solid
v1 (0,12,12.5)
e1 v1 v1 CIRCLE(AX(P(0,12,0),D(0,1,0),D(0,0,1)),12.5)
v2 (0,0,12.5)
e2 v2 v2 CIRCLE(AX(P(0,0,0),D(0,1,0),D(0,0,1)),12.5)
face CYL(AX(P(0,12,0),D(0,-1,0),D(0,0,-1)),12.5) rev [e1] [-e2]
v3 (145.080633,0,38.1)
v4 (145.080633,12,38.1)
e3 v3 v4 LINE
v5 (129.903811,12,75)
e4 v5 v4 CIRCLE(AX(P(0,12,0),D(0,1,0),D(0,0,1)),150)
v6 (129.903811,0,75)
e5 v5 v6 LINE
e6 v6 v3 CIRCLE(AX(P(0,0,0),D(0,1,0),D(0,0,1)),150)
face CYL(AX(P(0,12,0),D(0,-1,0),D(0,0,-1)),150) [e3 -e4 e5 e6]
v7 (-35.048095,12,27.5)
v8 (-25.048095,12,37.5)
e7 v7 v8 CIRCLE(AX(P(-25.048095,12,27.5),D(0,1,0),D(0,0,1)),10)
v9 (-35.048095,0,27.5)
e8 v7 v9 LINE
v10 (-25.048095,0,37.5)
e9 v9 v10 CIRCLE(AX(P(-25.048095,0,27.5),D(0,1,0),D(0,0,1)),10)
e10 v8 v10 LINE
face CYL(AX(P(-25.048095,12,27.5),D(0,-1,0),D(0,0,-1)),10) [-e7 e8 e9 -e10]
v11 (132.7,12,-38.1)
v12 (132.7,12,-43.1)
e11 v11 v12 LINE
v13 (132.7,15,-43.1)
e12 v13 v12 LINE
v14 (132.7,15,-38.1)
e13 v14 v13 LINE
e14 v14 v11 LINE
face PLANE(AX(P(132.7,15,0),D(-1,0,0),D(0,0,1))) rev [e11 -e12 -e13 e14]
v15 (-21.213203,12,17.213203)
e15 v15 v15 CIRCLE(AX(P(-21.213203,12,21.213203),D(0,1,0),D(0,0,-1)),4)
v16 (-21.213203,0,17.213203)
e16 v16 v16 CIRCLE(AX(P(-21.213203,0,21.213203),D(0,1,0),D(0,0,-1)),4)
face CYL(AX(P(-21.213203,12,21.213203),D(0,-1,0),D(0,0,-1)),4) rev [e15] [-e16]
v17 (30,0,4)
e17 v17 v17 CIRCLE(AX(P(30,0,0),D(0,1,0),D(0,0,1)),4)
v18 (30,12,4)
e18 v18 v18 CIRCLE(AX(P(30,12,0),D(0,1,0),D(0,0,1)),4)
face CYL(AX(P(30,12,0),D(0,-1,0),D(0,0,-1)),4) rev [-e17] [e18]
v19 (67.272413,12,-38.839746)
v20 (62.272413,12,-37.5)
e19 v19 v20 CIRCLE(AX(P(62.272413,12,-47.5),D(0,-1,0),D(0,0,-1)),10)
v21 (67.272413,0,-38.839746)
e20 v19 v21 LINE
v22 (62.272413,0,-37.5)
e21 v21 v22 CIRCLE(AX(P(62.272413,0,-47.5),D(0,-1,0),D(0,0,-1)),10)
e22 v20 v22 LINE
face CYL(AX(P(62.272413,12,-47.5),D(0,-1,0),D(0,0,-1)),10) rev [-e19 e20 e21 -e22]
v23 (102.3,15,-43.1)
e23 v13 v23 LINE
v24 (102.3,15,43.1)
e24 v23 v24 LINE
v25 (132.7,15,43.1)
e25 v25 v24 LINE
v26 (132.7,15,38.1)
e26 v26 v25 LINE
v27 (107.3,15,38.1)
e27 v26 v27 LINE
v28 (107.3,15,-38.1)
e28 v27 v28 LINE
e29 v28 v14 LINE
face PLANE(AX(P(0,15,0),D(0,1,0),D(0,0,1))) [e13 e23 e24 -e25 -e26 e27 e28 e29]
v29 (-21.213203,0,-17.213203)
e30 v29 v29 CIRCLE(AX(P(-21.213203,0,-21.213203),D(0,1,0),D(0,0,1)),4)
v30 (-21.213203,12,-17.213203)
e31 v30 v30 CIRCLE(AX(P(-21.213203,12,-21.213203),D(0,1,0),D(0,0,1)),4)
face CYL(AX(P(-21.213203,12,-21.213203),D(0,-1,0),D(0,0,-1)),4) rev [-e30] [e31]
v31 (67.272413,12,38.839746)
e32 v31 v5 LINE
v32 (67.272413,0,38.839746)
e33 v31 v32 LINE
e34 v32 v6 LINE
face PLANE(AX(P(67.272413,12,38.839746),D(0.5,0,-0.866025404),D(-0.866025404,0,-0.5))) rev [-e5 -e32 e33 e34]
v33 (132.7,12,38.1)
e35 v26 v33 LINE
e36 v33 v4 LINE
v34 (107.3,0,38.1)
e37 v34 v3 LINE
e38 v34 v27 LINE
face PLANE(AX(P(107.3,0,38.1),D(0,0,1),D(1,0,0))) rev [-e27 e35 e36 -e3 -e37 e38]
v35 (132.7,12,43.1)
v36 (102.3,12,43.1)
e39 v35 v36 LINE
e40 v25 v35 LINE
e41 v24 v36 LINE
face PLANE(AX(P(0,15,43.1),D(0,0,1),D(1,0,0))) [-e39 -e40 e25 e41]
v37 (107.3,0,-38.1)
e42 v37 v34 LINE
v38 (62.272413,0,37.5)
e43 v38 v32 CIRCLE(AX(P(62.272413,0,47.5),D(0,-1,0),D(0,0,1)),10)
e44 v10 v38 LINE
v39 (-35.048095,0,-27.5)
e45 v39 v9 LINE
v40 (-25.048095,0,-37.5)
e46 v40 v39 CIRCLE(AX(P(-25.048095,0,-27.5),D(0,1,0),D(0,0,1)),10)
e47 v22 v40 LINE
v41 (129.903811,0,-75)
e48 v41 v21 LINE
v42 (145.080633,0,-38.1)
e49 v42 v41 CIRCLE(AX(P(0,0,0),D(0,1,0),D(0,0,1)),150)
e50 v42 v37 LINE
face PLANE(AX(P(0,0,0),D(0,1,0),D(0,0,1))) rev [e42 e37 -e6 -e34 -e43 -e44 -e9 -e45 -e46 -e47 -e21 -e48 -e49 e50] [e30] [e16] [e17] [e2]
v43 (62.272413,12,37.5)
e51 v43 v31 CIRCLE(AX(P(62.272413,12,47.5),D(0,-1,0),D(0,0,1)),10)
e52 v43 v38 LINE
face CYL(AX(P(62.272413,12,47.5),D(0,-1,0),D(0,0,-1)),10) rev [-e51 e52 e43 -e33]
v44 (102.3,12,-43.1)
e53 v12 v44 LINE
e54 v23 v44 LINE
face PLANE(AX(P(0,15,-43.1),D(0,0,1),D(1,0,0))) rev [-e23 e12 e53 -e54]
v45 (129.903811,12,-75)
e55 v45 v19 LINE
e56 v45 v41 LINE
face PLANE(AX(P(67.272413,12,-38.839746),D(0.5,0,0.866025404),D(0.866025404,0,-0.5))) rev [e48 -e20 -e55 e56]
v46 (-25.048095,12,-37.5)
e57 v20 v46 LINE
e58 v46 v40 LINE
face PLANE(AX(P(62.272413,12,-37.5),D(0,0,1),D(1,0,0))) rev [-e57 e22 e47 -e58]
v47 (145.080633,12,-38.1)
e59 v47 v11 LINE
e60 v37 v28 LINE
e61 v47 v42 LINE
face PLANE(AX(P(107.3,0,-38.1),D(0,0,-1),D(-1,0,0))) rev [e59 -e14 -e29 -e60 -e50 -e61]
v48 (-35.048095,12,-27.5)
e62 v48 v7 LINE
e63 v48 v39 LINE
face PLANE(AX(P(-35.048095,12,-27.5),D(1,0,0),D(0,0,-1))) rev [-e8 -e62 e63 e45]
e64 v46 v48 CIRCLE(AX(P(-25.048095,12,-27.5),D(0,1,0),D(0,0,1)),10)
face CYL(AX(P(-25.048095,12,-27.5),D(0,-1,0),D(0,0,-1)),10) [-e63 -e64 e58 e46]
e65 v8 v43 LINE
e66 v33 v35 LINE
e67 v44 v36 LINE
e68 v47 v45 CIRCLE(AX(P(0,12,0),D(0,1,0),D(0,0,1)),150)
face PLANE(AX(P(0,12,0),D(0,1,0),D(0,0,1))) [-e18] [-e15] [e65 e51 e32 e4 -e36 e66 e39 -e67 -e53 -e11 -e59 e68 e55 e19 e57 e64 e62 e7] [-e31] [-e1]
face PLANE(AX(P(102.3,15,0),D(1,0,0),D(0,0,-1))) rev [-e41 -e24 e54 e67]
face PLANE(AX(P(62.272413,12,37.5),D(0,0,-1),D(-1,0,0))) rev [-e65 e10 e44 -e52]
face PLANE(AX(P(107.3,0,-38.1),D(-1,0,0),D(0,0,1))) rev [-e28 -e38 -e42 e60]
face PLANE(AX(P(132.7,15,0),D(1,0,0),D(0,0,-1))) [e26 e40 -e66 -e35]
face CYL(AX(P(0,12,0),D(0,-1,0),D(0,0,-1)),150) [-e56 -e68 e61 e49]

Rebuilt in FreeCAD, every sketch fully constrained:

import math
import FreeCAD as App
import Part
import Sketcher
Q = App.Units.Quantity

doc = App.newDocument("Part")
body = doc.addObject("PartDesign::Body", "Body")

# Sketch on XZ plane
sketch1 = body.newObject("Sketcher::SketchObject", "Sketch")
sketch1.AttachmentSupport = (doc.getObject("XZ_Plane"), [""])
sketch1.MapMode = "FlatFace"
sketch1.addGeometry([
    Part.LineSegment(App.Vector(129.903811, -75, 0), App.Vector(67.272413, -38.839746, 0)),  # 0
    Part.ArcOfCircle(Part.Circle(App.Vector(62.272413, -47.5, 0), App.Vector(0, 0, 1), 10), math.radians(60), math.radians(90)),  # 1
    Part.LineSegment(App.Vector(62.272413, -37.5, 0), App.Vector(-25.048095, -37.5, 0)),  # 2
    Part.ArcOfCircle(Part.Circle(App.Vector(-25.048095, -27.5, 0), App.Vector(0, 0, 1), 10), math.radians(180), math.radians(270)),  # 3
    Part.LineSegment(App.Vector(-35.048095, -27.5, 0), App.Vector(-35.048095, 27.5, 0)),  # 4
    Part.ArcOfCircle(Part.Circle(App.Vector(-25.048095, 27.5, 0), App.Vector(0, 0, 1), 10), math.radians(90), math.radians(180)),  # 5
    Part.LineSegment(App.Vector(-25.048095, 37.5, 0), App.Vector(62.272413, 37.5, 0)),  # 6
    Part.ArcOfCircle(Part.Circle(App.Vector(62.272413, 47.5, 0), App.Vector(0, 0, 1), 10), math.radians(-90), math.radians(-60)),  # 7
    Part.LineSegment(App.Vector(67.272413, 38.839746, 0), App.Vector(129.903811, 75, 0)),  # 8
    Part.ArcOfCircle(Part.Circle(App.Vector(0, 0, 0), App.Vector(0, 0, 1), 150), math.radians(-30), math.radians(30)),  # 9
    Part.Circle(App.Vector(-21.213203, 21.213203, 0), App.Vector(0, 0, 1), 4),  # 10
    Part.Circle(App.Vector(30, 0, 0), App.Vector(0, 0, 1), 4),  # 11
    Part.Circle(App.Vector(0, 0, 0), App.Vector(0, 0, 1), 12.5),  # 12
    Part.Circle(App.Vector(-21.213203, -21.213203, 0), App.Vector(0, 0, 1), 4),  # 13
], False)
sketch1.addConstraint([
    Sketcher.Constraint("Tangent", 0, 2, 1, 1),
    Sketcher.Constraint("Tangent", 1, 2, 2, 1),
    Sketcher.Constraint("Tangent", 2, 2, 3, 2),
    Sketcher.Constraint("Tangent", 3, 1, 4, 1),
    Sketcher.Constraint("Tangent", 4, 2, 5, 2),
    Sketcher.Constraint("Tangent", 5, 1, 6, 1),
    Sketcher.Constraint("Tangent", 6, 2, 7, 1),
    Sketcher.Constraint("Tangent", 7, 2, 8, 1),
    Sketcher.Constraint("Coincident", 8, 2, 9, 2),
    Sketcher.Constraint("Coincident", 9, 1, 0, 1),
    Sketcher.Constraint("Horizontal", 2),
    Sketcher.Constraint("Vertical", 4),
    Sketcher.Constraint("Horizontal", 6),
    Sketcher.Constraint("Coincident", 9, 3, -1, 1),
    Sketcher.Constraint("Coincident", 12, 3, -1, 1),
    Sketcher.Constraint("Equal", 1, 3),
    Sketcher.Constraint("Equal", 3, 5),
    Sketcher.Constraint("Equal", 5, 7),
    Sketcher.Constraint("Equal", 10, 11),
    Sketcher.Constraint("Equal", 11, 13),
    Sketcher.Constraint("Symmetric", 1, 3, 7, 3, -1),
    Sketcher.Constraint("Symmetric", 10, 3, 13, 3, -1),
    Sketcher.Constraint("PointOnObject", 11, 3, -1),
    Sketcher.Constraint("Vertical", 0, 2, 7, 2),
    Sketcher.Constraint("Diameter", 10, 8.0),
    Sketcher.Constraint("Diameter", 12, 25.0),
    Sketcher.Constraint("Radius", 1, 10.0),
    Sketcher.Constraint("Radius", 9, 150.0),
    Sketcher.Constraint("DistanceY", 4, 1, 4, 2, 55.0),
    Sketcher.Constraint("Angle", 0, Q("150 deg")),
    Sketcher.Constraint("DistanceX", -1, 1, 11, 3, 30.0),
    Sketcher.Constraint("DistanceY", -1, 1, 8, 2, 75.0),
    Sketcher.Constraint("DistanceX", 2, 2, 2, 1, 87.320508),
    Sketcher.Constraint("DistanceX", 5, 3, 10, 3, 3.834891),
    Sketcher.Constraint("DistanceY", -1, 1, 10, 3, 21.213203),
])
pad1 = body.newObject("PartDesign::Pad", "Pad")
pad1.Profile = sketch1
pad1.Length = 12
pad1.Reversed = True

# Sketch on XZ plane
sketch2 = body.newObject("Sketcher::SketchObject", "Sketch001")
sketch2.AttachmentSupport = (doc.getObject("XZ_Plane"), [""])
sketch2.MapMode = "FlatFace"
sketch2.AttachmentOffset = App.Placement(App.Vector(0, 0, -12), App.Rotation())
sketch2.addGeometry([
    Part.LineSegment(App.Vector(107.3, -38.1, 0), App.Vector(107.3, 38.1, 0)),
    Part.LineSegment(App.Vector(107.3, 38.1, 0), App.Vector(155.302845, 38.1, 0)),
    Part.LineSegment(App.Vector(155.302845, 38.1, 0), App.Vector(155.302845, -38.1, 0)),
    Part.LineSegment(App.Vector(155.302845, -38.1, 0), App.Vector(107.3, -38.1, 0)),
], False)
sketch2.addConstraint([
    Sketcher.Constraint("Coincident", 0, 2, 1, 1),
    Sketcher.Constraint("Coincident", 1, 2, 2, 1),
    Sketcher.Constraint("Coincident", 2, 2, 3, 1),
    Sketcher.Constraint("Coincident", 3, 2, 0, 1),
    Sketcher.Constraint("Vertical", 0),
    Sketcher.Constraint("Horizontal", 1),
    Sketcher.Constraint("Vertical", 2),
    Sketcher.Constraint("Horizontal", 3),
    Sketcher.Constraint("DistanceY", 0, 1, 0, 2, 76.2),
    Sketcher.Constraint("DistanceX", -1, 1, 0, 2, 107.3),
    Sketcher.Constraint("DistanceY", -1, 1, 0, 2, 38.1),
    Sketcher.Constraint("DistanceX", 1, 1, 1, 2, 48.002845),
])
pocket1 = body.newObject("PartDesign::Pocket", "Pocket")
pocket1.Profile = sketch2
pocket1.Type = "ThroughAll"
pocket1.Reversed = True

# Sketch on XZ plane
sketch3 = body.newObject("Sketcher::SketchObject", "Sketch002")
sketch3.AttachmentSupport = (doc.getObject("XZ_Plane"), [""])
sketch3.MapMode = "FlatFace"
sketch3.AttachmentOffset = App.Placement(App.Vector(0, 0, -12), App.Rotation())
sketch3.addGeometry([
    Part.LineSegment(App.Vector(107.3, 38.1, 0), App.Vector(107.3, -38.1, 0)),  # 0
    Part.LineSegment(App.Vector(107.3, -38.1, 0), App.Vector(132.7, -38.1, 0)),  # 1
    Part.LineSegment(App.Vector(132.7, -38.1, 0), App.Vector(132.7, -43.1, 0)),  # 2
    Part.LineSegment(App.Vector(132.7, -43.1, 0), App.Vector(102.3, -43.1, 0)),  # 3
    Part.LineSegment(App.Vector(102.3, -43.1, 0), App.Vector(102.3, 43.1, 0)),  # 4
    Part.LineSegment(App.Vector(102.3, 43.1, 0), App.Vector(132.7, 43.1, 0)),  # 5
    Part.LineSegment(App.Vector(132.7, 43.1, 0), App.Vector(132.7, 38.1, 0)),  # 6
    Part.LineSegment(App.Vector(132.7, 38.1, 0), App.Vector(107.3, 38.1, 0)),  # 7
], False)
sketch3.addConstraint([
    Sketcher.Constraint("Coincident", 0, 2, 1, 1),
    Sketcher.Constraint("Coincident", 1, 2, 2, 1),
    Sketcher.Constraint("Coincident", 2, 2, 3, 1),
    Sketcher.Constraint("Coincident", 3, 2, 4, 1),
    Sketcher.Constraint("Coincident", 4, 2, 5, 1),
    Sketcher.Constraint("Coincident", 5, 2, 6, 1),
    Sketcher.Constraint("Coincident", 6, 2, 7, 1),
    Sketcher.Constraint("Coincident", 7, 2, 0, 1),
    Sketcher.Constraint("Vertical", 0),
    Sketcher.Constraint("Horizontal", 1),
    Sketcher.Constraint("Vertical", 2),
    Sketcher.Constraint("Horizontal", 3),
    Sketcher.Constraint("Vertical", 4),
    Sketcher.Constraint("Horizontal", 5),
    Sketcher.Constraint("Vertical", 6),
    Sketcher.Constraint("Horizontal", 7),
    Sketcher.Constraint("Symmetric", 2, 2, 5, 2, -1),
    Sketcher.Constraint("Equal", 2, 6),
    Sketcher.Constraint("DistanceY", 2, 2, 2, 1, 5.0),
    Sketcher.Constraint("DistanceX", 1, 1, 1, 2, 25.4),
    Sketcher.Constraint("DistanceX", 3, 2, 3, 1, 30.4),
    Sketcher.Constraint("DistanceY", 0, 2, 0, 1, 76.2),
    Sketcher.Constraint("DistanceX", -1, 1, 0, 2, 107.3),
])
pad2 = body.newObject("PartDesign::Pad", "Pad001")
pad2.Profile = sketch3
pad2.Length = 3
pad2.Reversed = True

doc.recompute()
